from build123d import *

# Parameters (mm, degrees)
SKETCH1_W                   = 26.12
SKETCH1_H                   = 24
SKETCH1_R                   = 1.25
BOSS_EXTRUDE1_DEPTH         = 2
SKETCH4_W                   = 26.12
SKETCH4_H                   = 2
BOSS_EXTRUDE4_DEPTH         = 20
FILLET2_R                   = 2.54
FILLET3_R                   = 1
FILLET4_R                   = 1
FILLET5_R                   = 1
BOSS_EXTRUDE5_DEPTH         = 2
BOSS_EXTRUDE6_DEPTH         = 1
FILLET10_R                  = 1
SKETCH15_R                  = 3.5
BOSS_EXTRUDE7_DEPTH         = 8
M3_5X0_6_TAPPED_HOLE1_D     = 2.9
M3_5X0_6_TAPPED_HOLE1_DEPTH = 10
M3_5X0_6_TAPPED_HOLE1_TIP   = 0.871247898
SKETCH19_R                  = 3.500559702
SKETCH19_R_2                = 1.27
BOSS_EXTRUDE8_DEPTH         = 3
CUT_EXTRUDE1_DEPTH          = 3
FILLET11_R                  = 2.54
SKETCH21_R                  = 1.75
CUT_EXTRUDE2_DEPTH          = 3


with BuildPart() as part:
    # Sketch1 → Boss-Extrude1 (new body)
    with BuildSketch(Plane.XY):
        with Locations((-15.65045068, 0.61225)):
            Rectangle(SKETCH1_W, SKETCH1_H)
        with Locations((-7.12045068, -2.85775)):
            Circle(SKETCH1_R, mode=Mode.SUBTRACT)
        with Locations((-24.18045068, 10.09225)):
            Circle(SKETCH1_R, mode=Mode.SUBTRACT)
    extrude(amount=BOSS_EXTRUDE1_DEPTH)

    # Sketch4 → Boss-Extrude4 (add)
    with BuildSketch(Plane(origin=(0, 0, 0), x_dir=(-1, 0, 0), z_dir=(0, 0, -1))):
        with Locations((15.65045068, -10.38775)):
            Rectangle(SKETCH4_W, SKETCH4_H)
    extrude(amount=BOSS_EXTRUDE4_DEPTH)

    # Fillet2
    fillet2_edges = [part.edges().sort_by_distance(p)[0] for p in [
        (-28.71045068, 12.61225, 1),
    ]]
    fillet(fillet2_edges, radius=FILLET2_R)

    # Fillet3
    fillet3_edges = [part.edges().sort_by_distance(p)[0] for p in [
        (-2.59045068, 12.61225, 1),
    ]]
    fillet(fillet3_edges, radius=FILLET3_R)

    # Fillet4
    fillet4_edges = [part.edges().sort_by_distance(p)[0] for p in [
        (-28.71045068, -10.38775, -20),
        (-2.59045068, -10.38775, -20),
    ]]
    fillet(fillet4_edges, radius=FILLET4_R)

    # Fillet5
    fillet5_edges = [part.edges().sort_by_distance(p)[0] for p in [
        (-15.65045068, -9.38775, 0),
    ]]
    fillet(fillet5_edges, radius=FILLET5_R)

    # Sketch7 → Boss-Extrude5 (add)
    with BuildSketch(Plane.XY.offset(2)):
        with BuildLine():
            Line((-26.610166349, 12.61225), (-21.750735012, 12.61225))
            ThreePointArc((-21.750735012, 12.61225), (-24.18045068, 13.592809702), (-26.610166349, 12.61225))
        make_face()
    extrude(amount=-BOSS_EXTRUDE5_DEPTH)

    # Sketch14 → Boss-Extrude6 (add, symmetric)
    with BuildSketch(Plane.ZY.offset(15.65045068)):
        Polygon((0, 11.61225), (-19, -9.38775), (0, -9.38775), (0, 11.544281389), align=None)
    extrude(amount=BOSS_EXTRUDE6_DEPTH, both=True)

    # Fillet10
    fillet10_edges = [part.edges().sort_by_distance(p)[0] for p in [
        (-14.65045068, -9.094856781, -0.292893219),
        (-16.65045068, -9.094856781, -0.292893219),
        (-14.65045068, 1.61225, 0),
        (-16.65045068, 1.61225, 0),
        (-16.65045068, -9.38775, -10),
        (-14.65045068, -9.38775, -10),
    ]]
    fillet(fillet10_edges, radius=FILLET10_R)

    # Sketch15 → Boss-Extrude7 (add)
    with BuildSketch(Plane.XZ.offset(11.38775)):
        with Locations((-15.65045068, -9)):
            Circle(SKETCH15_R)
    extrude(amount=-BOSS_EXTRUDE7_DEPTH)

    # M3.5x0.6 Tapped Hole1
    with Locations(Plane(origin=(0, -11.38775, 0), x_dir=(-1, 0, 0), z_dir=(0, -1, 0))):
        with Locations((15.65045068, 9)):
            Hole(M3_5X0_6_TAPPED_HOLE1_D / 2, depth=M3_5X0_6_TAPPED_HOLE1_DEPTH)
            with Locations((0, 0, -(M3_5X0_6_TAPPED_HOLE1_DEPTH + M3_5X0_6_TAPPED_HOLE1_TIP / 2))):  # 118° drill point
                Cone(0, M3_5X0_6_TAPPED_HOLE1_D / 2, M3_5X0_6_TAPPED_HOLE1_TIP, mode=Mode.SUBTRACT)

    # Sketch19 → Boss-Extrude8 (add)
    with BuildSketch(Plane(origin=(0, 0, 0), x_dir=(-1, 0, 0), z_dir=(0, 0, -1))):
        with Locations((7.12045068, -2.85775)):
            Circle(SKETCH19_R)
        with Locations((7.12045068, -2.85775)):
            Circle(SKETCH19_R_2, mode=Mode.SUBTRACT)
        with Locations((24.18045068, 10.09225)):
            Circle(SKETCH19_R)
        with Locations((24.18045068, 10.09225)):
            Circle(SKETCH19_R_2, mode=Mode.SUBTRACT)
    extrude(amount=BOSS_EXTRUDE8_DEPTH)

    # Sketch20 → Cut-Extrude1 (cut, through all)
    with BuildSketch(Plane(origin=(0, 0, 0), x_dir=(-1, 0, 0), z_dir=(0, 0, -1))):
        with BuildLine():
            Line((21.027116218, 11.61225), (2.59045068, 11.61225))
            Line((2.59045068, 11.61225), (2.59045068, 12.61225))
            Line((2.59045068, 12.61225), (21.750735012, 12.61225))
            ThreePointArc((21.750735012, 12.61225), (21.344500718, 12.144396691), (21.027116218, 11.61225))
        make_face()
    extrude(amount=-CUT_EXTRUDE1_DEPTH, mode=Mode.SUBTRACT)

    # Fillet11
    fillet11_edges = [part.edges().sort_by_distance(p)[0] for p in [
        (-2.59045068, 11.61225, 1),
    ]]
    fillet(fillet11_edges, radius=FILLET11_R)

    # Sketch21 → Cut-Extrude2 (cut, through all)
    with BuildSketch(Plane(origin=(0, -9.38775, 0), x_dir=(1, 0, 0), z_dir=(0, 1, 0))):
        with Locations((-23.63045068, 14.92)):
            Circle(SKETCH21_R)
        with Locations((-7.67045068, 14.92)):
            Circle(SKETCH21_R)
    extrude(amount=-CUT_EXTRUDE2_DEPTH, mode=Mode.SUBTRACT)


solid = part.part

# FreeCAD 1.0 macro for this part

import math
import FreeCAD as App
import Part
import Sketcher
from FreeCAD import Vector


def edges_at(feature, points):
    """Names of the edges that pass closest to the given points."""
    edges = feature.Shape.Edges
    near = lambda p: min(range(len(edges)), key=lambda i: edges[i].distToShape(Part.Vertex(*p))[0])
    return sorted({f"Edge{near(p) + 1}" for p in points})


def add_polygon(sketch, points):
    """Adds a closed chain of lines whose ends are joined by coincident constraints."""
    first, n = sketch.GeometryCount, len(points)
    for a, b in zip(points, points[1:] + points[:1]):
        sketch.addGeometry(Part.LineSegment(App.Vector(*a, 0), App.Vector(*b, 0)), False)
    for i in range(n):
        sketch.addConstraint(Sketcher.Constraint("Coincident", first + i, 2, first + (i + 1) % n, 1))

doc = App.newDocument("Part")
body = doc.addObject("PartDesign::Body", "Body")

# Sketch on XY plane
sketch1 = doc.addObject("Sketcher::SketchObject", "Sketch")
body.addObject(sketch1)
sketch1.AttachmentSupport = (doc.XY_Plane, [""])
sketch1.MapMode = "FlatFace"
add_polygon(sketch1, [(-28.7, 12.6), (-28.7, -11.4), (-2.6, -11.4), (-2.6, 12.6)])  # lines 0-3
sketch1.addGeometry(Part.Circle(Vector(-7.1, -2.9, 0), Vector(0, 0, 1), 1.2), False)  # 4
sketch1.addGeometry(Part.Circle(Vector(-24.2, 10.1, 0), Vector(0, 0, 1), 1.2), False)  # 5
sketch1.addConstraint([
    Sketcher.Constraint("Vertical", 0),
    Sketcher.Constraint("Horizontal", 1),
    Sketcher.Constraint("Vertical", 2),
    Sketcher.Constraint("Horizontal", 3),
    Sketcher.Constraint("Equal", 4, 5),
    Sketcher.Constraint("Diameter", 4, 2.5),
    Sketcher.Constraint("DistanceY", 0, 2, 0, 1, 24.0),
    Sketcher.Constraint("DistanceX", 1, 1, 1, 2, 26.12),
    Sketcher.Constraint("DistanceX", 5, 3, 4, 3, 17.06),
    Sketcher.Constraint("DistanceY", 4, 3, 5, 3, 12.95),
    Sketcher.Constraint("DistanceX", 0, 2, 5, 3, 4.53),
    Sketcher.Constraint("DistanceY", 0, 2, 5, 3, 21.48),
    Sketcher.Constraint("DistanceX", 4, 3, -1, 1, 7.120451),
    Sketcher.Constraint("DistanceY", 4, 3, -1, 1, 2.85775),
])
pad1 = doc.addObject("PartDesign::Pad", "Pad")
body.addObject(pad1)
pad1.Profile = sketch1
pad1.Length = 2

# Sketch on XY plane
sketch2 = doc.addObject("Sketcher::SketchObject", "Sketch001")
body.addObject(sketch2)
sketch2.AttachmentSupport = (doc.XY_Plane, [""])
sketch2.MapMode = "FlatFace"
add_polygon(sketch2, [(-2.6, -9.4), (-2.6, -11.4), (-28.7, -11.4), (-28.7, -9.4)])  # lines 0-3
sketch2.addConstraint([
    Sketcher.Constraint("Vertical", 0),
    Sketcher.Constraint("Horizontal", 1),
    Sketcher.Constraint("Vertical", 2),
    Sketcher.Constraint("Horizontal", 3),
    Sketcher.Constraint("DistanceY", 0, 2, 0, 1, 2.0),
    Sketcher.Constraint("DistanceX", 1, 2, 1, 1, 26.12),
    Sketcher.Constraint("DistanceX", 0, 2, -1, 1, 2.590451),
    Sketcher.Constraint("DistanceY", 0, 2, -1, 1, 11.38775),
])
pad2 = doc.addObject("PartDesign::Pad", "Pad001")
body.addObject(pad2)
pad2.Profile = sketch2
pad2.Length = 20
pad2.Reversed = True
doc.recompute()

fillet = doc.addObject("PartDesign::Fillet", "Fillet")
body.addObject(fillet)
fillet.Base = (pad2, edges_at(pad2, [(-28.71, 12.612, 1)]))
fillet.Radius = 2.54
doc.recompute()

fillet2 = doc.addObject("PartDesign::Fillet", "Fillet001")
body.addObject(fillet2)
fillet2.Base = (fillet, edges_at(fillet, [(-2.59, 12.612, 1)]))
fillet2.Radius = 1
doc.recompute()

fillet3 = doc.addObject("PartDesign::Fillet", "Fillet002")
body.addObject(fillet3)
fillet3.Base = (fillet2, edges_at(fillet2, [(-28.71, -10.388, -20), (-2.59, -10.388, -20)]))
fillet3.Radius = 1
doc.recompute()

fillet4 = doc.addObject("PartDesign::Fillet", "Fillet003")
body.addObject(fillet4)
fillet4.Base = (fillet3, edges_at(fillet3, [(-15.65, -9.388, 0)]))
fillet4.Radius = 1

# Sketch on XY plane
sketch3 = doc.addObject("Sketcher::SketchObject", "Sketch002")
body.addObject(sketch3)
sketch3.AttachmentSupport = (doc.XY_Plane, [""])
sketch3.MapMode = "FlatFace"
sketch3.AttachmentOffset = App.Placement(Vector(0, 0, 2), App.Rotation())
sketch3.addGeometry([
    Part.LineSegment(Vector(-26.6, 12.6, 0), Vector(-21.8, 12.6, 0)),
    Part.ArcOfCircle(Part.Circle(Vector(-24.2, 10.1, 0), Vector(0, 0, 1), 3.5), math.radians(46), math.radians(134)),
], False)
sketch3.addConstraint([
    Sketcher.Constraint("Coincident", 0, 1, 1, 2),
    Sketcher.Constraint("Coincident", 1, 1, 0, 2),
    Sketcher.Constraint("Horizontal", 0),
    Sketcher.Constraint("Radius", 1, 3.50056),
    Sketcher.Constraint("DistanceY", 1, 3, 0, 1, 2.52),
    Sketcher.Constraint("DistanceX", 1, 3, -1, 1, 24.180451),
    Sketcher.Constraint("DistanceY", -1, 1, 1, 3, 10.09225),
])
pad3 = doc.addObject("PartDesign::Pad", "Pad002")
body.addObject(pad3)
pad3.Profile = sketch3
pad3.Length = 2
pad3.Reversed = True

# Sketch on YZ plane
sketch4 = doc.addObject("Sketcher::SketchObject", "Sketch003")
body.addObject(sketch4)
sketch4.AttachmentSupport = (doc.YZ_Plane, [""])
sketch4.MapMode = "FlatFace"
sketch4.AttachmentOffset = App.Placement(Vector(0, 0, -15.650451), App.Rotation())
add_polygon(sketch4, [(12, 0), (-9, -19), (-9, 0)])  # lines 0-2
sketch4.addConstraint([
    Sketcher.Constraint("Vertical", 1),
    Sketcher.Constraint("Horizontal", 2),
    Sketcher.Constraint("PointOnObject", 1, 2, -1),
    Sketcher.Constraint("DistanceX", 2, 1, 2, 2, 21.0),
    Sketcher.Constraint("DistanceY", 1, 1, 1, 2, 19.0),
    Sketcher.Constraint("DistanceX", 0, 2, -1, 1, 9.38775),
])
pad4 = doc.addObject("PartDesign::Pad", "Pad003")
body.addObject(pad4)
pad4.Profile = sketch4
pad4.Length = 2
pad4.Midplane = True
doc.recompute()

fillet5 = doc.addObject("PartDesign::Fillet", "Fillet004")
body.addObject(fillet5)
fillet5.Base = (pad4, edges_at(pad4, [
    (-14.65, -9.095, -0.293),
    (-16.65, -9.095, -0.293),
    (-14.65, 1.612, 0),
    (-16.65, 1.612, 0),
    (-16.65, -9.388, -10),
    (-14.65, -9.388, -10),
]))
fillet5.Radius = 1

# Sketch on XZ plane
sketch5 = doc.addObject("Sketcher::SketchObject", "Sketch004")
body.addObject(sketch5)
sketch5.AttachmentSupport = (doc.XZ_Plane, [""])
sketch5.MapMode = "FlatFace"
sketch5.AttachmentOffset = App.Placement(Vector(0, 0, 11.38775), App.Rotation())
sketch5.addGeometry(Part.Circle(Vector(-15.7, -9, 0), Vector(0, 0, 1), 3.5), False)
sketch5.addConstraint([
    Sketcher.Constraint("Diameter", 0, 7.0),
    Sketcher.Constraint("DistanceY", 0, 3, -1, 1, 9.0),
    Sketcher.Constraint("DistanceX", 0, 3, -1, 1, 15.650451),
])
pad5 = doc.addObject("PartDesign::Pad", "Pad004")
body.addObject(pad5)
pad5.Profile = sketch5
pad5.Length = 8
pad5.Reversed = True

# Sketch on XZ plane
sketch6 = doc.addObject("Sketcher::SketchObject", "Sketch005")
body.addObject(sketch6)
sketch6.AttachmentSupport = (doc.XZ_Plane, [""])
sketch6.MapMode = "FlatFace"
sketch6.AttachmentOffset = App.Placement(Vector(0, 0, 11.38775), App.Rotation())
sketch6.addGeometry(Part.Circle(Vector(-15.7, -9, 0), Vector(0, 0, 1), 1.4), False)
sketch6.addConstraint([
    Sketcher.Constraint("Diameter", 0, 2.9),
    Sketcher.Constraint("DistanceY", 0, 3, -1, 1, 9.0),
    Sketcher.Constraint("DistanceX", 0, 3, -1, 1, 15.650451),
])
doc.recompute()
hole = doc.addObject("PartDesign::Hole", "Hole")
body.addObject(hole)
hole.Profile = sketch6
hole.ThreadType = "None"
hole.Diameter = 2.9
hole.DepthType = "Dimension"
hole.Depth = 10
hole.DrillPoint = "Angled"
hole.DrillPointAngle = 118

# Sketch on XY plane
sketch7 = doc.addObject("Sketcher::SketchObject", "Sketch006")
body.addObject(sketch7)
sketch7.AttachmentSupport = (doc.XY_Plane, [""])
sketch7.MapMode = "FlatFace"
sketch7.addGeometry([
    Part.Circle(Vector(-7.1, -2.9, 0), Vector(0, 0, 1), 3.5),
    Part.Circle(Vector(-7.1, -2.9, 0), Vector(0, 0, 1), 1.3),
    Part.Circle(Vector(-24.2, 10.1, 0), Vector(0, 0, 1), 3.5),
    Part.Circle(Vector(-24.2, 10.1, 0), Vector(0, 0, 1), 1.3),
], False)
sketch7.addConstraint([
    Sketcher.Constraint("Coincident", 1, 3, 0, 3),
    Sketcher.Constraint("Coincident", 3, 3, 2, 3),
    Sketcher.Constraint("Equal", 0, 2),
    Sketcher.Constraint("Equal", 1, 3),
    Sketcher.Constraint("Diameter", 1, 2.54),
    Sketcher.Constraint("Diameter", 0, 7.001119),
    Sketcher.Constraint("DistanceX", 2, 3, 0, 3, 17.06),
    Sketcher.Constraint("DistanceY", 0, 3, 2, 3, 12.95),
    Sketcher.Constraint("DistanceX", 0, 3, -1, 1, 7.120451),
    Sketcher.Constraint("DistanceY", 0, 3, -1, 1, 2.85775),
])
pad6 = doc.addObject("PartDesign::Pad", "Pad005")
body.addObject(pad6)
pad6.Profile = sketch7
pad6.Length = 3
pad6.Reversed = True

# Sketch on XY plane
sketch8 = doc.addObject("Sketcher::SketchObject", "Sketch007")
body.addObject(sketch8)
sketch8.AttachmentSupport = (doc.XY_Plane, [""])
sketch8.MapMode = "FlatFace"
sketch8.addGeometry([
    Part.LineSegment(Vector(-2.6, 11.6, 0), Vector(-21, 11.6, 0)),
    Part.ArcOfCircle(Part.Circle(Vector(-24.2, 10.1, 0), Vector(0, 0, 1), 3.5), math.radians(26), math.radians(46)),
    Part.LineSegment(Vector(-21.8, 12.6, 0), Vector(-2.6, 12.6, 0)),
    Part.LineSegment(Vector(-2.6, 12.6, 0), Vector(-2.6, 11.6, 0)),
], False)
sketch8.addConstraint([
    Sketcher.Constraint("Coincident", 0, 2, 1, 1),
    Sketcher.Constraint("Coincident", 1, 2, 2, 1),
    Sketcher.Constraint("Coincident", 2, 2, 3, 1),
    Sketcher.Constraint("Coincident", 3, 2, 0, 1),
    Sketcher.Constraint("Horizontal", 0),
    Sketcher.Constraint("Horizontal", 2),
    Sketcher.Constraint("Vertical", 3),
    Sketcher.Constraint("DistanceY", 3, 2, 3, 1, 1.0),
    Sketcher.Constraint("Radius", 1, 3.50056),
    Sketcher.Constraint("DistanceY", 1, 3, 0, 2, 1.52),
    Sketcher.Constraint("DistanceX", 1, 3, 2, 2, 21.59),
    Sketcher.Constraint("DistanceX", 1, 3, -1, 1, 24.180451),
    Sketcher.Constraint("DistanceY", -1, 1, 1, 3, 10.09225),
])
pocket1 = doc.addObject("PartDesign::Pocket", "Pocket")
body.addObject(pocket1)
pocket1.Profile = sketch8
pocket1.Type = "ThroughAll"
pocket1.Reversed = True
doc.recompute()

fillet6 = doc.addObject("PartDesign::Fillet", "Fillet005")
body.addObject(fillet6)
fillet6.Base = (pocket1, edges_at(pocket1, [(-2.59, 11.612, 1)]))
fillet6.Radius = 2.54

# Sketch on XZ plane
sketch9 = doc.addObject("Sketcher::SketchObject", "Sketch008")
body.addObject(sketch9)
sketch9.AttachmentSupport = (doc.XZ_Plane, [""])
sketch9.MapMode = "FlatFace"
sketch9.AttachmentOffset = App.Placement(Vector(0, 0, 9.38775), App.Rotation())
sketch9.addGeometry([
    Part.Circle(Vector(-23.6, -14.9, 0), Vector(0, 0, 1), 1.8),
    Part.Circle(Vector(-7.7, -14.9, 0), Vector(0, 0, 1), 1.8),
], False)
sketch9.addConstraint([
    Sketcher.Constraint("Equal", 0, 1),
    Sketcher.Constraint("Horizontal", 0, 3, 1, 3),
    Sketcher.Constraint("Diameter", 0, 3.5),
    Sketcher.Constraint("DistanceY", 0, 3, -1, 1, 14.92),
    Sketcher.Constraint("DistanceX", 0, 3, 1, 3, 15.96),
    Sketcher.Constraint("DistanceX", 0, 3, -1, 1, 23.630451),
])
pocket2 = doc.addObject("PartDesign::Pocket", "Pocket001")
body.addObject(pocket2)
pocket2.Profile = sketch9
pocket2.Type = "ThroughAll"
pocket2.Reversed = True

doc.recompute()
